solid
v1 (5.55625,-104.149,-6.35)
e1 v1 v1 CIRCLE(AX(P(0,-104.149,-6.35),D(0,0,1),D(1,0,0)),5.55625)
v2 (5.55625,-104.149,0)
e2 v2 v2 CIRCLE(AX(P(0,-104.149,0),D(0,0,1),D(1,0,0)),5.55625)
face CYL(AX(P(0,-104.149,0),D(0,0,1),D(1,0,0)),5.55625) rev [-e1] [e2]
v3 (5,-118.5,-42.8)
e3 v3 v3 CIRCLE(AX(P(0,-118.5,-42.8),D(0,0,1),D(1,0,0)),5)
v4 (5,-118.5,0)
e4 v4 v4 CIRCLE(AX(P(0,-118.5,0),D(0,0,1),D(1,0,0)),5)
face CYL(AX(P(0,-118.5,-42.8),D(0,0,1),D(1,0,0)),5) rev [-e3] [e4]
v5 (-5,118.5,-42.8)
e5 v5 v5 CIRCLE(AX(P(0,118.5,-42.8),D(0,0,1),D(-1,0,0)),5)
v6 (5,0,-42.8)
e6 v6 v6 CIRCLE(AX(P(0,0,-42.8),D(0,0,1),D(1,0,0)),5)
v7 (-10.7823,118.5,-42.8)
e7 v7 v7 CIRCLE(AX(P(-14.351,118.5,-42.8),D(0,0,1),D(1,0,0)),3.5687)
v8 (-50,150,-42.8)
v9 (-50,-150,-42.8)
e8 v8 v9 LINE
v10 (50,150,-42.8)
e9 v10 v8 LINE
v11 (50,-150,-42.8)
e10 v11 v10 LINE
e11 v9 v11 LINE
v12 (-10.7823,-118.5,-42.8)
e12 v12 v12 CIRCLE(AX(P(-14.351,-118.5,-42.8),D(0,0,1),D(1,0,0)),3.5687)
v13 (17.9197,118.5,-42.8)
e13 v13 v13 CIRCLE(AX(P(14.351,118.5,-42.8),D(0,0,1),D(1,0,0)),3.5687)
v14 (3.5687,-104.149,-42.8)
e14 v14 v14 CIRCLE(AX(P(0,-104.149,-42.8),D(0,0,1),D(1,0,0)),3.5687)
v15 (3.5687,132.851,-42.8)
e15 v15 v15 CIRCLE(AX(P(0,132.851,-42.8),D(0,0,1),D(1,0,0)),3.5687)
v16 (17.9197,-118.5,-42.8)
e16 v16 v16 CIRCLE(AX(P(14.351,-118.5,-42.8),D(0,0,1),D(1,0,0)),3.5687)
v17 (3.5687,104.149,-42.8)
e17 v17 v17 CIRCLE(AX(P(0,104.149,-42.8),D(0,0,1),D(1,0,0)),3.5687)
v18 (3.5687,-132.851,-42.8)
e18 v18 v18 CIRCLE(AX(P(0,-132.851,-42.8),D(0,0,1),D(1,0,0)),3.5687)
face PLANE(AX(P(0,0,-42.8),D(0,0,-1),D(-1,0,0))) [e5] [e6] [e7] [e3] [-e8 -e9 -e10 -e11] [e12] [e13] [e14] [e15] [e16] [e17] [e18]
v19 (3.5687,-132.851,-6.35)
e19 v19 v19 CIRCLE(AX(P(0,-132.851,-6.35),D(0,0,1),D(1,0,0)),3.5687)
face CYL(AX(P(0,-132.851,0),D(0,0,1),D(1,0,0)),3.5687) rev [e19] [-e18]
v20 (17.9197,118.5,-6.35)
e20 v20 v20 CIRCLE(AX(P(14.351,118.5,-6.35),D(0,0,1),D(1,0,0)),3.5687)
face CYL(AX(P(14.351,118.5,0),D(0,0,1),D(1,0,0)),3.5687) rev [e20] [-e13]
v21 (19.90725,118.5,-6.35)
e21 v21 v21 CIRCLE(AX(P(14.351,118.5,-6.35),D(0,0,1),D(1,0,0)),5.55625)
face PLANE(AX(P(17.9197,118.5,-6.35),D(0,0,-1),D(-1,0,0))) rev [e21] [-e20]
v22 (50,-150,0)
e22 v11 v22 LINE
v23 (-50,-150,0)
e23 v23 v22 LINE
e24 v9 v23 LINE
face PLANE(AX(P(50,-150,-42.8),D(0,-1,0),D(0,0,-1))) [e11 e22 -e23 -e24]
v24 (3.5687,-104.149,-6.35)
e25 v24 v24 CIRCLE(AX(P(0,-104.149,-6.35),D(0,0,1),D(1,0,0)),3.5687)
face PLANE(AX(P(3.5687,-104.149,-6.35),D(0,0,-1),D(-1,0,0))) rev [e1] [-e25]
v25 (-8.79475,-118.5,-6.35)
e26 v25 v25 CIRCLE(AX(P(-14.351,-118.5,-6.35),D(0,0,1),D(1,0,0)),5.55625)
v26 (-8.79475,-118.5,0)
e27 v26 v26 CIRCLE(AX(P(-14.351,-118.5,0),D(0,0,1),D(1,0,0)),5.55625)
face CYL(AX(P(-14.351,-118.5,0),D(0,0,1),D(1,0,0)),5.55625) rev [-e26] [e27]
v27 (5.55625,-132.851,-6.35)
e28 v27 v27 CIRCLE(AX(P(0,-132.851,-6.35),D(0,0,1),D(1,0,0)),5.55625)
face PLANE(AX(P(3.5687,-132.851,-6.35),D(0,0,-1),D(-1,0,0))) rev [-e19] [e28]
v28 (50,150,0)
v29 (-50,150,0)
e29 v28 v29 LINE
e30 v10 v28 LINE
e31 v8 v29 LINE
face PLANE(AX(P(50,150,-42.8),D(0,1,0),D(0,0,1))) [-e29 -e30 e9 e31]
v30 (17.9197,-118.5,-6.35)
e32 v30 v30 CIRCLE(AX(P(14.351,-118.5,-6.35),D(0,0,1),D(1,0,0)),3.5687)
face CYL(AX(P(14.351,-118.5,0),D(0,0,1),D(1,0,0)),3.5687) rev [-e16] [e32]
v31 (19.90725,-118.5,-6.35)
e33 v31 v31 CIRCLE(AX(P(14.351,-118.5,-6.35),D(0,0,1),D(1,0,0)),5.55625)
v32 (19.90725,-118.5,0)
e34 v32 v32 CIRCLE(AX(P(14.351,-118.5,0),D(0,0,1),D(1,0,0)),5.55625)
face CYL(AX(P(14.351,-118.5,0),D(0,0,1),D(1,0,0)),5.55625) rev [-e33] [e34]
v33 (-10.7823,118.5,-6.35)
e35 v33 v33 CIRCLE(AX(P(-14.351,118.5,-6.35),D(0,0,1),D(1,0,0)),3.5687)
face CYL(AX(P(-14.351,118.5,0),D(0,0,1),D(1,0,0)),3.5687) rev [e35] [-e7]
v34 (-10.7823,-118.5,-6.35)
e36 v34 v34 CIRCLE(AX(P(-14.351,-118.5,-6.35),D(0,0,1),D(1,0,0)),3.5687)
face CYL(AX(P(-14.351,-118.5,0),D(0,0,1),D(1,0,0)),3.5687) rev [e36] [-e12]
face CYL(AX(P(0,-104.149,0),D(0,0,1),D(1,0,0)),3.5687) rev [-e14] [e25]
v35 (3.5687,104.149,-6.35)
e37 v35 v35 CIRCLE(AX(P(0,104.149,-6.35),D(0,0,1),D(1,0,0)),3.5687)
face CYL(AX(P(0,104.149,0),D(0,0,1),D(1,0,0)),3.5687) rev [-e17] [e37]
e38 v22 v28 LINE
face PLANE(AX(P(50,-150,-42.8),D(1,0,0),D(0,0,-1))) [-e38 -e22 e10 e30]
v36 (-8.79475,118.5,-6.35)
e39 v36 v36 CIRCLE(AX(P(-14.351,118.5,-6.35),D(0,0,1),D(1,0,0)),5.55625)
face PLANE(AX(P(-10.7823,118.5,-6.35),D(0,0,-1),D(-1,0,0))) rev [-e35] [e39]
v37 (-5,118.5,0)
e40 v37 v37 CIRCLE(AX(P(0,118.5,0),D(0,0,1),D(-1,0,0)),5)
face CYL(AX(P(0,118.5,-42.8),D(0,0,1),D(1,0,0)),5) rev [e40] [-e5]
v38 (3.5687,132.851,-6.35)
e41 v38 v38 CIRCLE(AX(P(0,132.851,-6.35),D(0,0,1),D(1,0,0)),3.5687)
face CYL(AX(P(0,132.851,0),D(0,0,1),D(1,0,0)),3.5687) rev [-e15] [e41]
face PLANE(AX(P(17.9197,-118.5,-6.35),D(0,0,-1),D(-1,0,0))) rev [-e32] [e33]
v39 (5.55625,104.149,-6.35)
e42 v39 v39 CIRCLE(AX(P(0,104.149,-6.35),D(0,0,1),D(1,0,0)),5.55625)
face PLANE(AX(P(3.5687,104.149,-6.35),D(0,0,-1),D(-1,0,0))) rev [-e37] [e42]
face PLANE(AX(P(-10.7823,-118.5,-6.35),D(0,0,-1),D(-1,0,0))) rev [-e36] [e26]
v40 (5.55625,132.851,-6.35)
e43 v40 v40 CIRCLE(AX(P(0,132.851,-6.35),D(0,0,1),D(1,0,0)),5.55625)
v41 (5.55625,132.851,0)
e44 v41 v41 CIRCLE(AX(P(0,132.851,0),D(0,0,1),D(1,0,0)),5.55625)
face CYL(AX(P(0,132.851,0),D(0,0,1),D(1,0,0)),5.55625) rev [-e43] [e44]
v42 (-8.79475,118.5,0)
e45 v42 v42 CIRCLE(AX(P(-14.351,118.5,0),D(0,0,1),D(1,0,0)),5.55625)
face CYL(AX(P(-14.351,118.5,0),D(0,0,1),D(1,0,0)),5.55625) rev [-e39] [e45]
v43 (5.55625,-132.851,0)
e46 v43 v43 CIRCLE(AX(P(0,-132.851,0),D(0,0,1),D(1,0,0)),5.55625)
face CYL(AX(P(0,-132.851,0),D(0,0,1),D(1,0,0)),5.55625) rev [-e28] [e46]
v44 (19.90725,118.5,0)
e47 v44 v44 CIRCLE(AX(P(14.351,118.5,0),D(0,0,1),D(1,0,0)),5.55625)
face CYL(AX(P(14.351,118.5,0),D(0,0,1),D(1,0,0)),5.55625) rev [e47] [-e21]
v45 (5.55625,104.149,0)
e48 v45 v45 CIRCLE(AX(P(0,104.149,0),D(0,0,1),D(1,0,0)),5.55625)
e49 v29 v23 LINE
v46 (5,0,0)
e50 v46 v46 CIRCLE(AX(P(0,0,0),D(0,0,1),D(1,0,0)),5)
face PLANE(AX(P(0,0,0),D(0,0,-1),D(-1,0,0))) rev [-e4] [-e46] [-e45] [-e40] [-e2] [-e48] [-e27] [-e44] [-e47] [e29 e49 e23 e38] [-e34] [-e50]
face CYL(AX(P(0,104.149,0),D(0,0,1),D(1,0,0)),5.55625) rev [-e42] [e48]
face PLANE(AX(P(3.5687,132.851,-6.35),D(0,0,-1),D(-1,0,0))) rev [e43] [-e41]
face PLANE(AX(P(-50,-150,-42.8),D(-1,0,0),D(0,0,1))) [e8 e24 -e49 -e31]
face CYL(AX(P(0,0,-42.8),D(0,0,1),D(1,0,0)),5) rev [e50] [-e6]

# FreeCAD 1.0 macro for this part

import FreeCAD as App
import Part
import Sketcher

V = App.Vector

doc = App.newDocument("Part")
body = doc.addObject("PartDesign::Body", "Body")

# Sketch on XY plane
sketch1 = body.newObject("Sketcher::SketchObject", "Sketch")
sketch1.AttachmentSupport = (doc.getObject("XY_Plane"), [""])
sketch1.MapMode = "FlatFace"
sketch1.addGeometry([
    Part.LineSegment(V(-50, -150, 0), V(50, -150, 0)),  # 0
    Part.LineSegment(V(50, -150, 0), V(50, 150, 0)),  # 1
    Part.LineSegment(V(50, 150, 0), V(-50, 150, 0)),  # 2
    Part.LineSegment(V(-50, 150, 0), V(-50, -150, 0)),  # 3
    Part.Circle(V(0, -118.5, 0), V(0, 0, 1), 5),  # 4
    Part.Circle(V(0, 0, 0), V(0, 0, 1), 5),  # 5
    Part.Circle(V(0, 118.5, 0), V(0, 0, 1), 5),  # 6
], False)
sketch1.addConstraint([
    Sketcher.Constraint("Coincident", 0, 2, 1, 1),
    Sketcher.Constraint("Coincident", 1, 2, 2, 1),
    Sketcher.Constraint("Coincident", 2, 2, 3, 1),
    Sketcher.Constraint("Coincident", 3, 2, 0, 1),
    Sketcher.Constraint("Horizontal", 0),
    Sketcher.Constraint("Vertical", 1),
    Sketcher.Constraint("Horizontal", 2),
    Sketcher.Constraint("Vertical", 3),
    Sketcher.Constraint("Coincident", 5, 3, -1, 1),
    Sketcher.Constraint("Equal", 4, 5),
    Sketcher.Constraint("Equal", 5, 6),
    Sketcher.Constraint("Symmetric", 4, 3, 6, 3, -1, 1),
    Sketcher.Constraint("Symmetric", 0, 2, 2, 2, -1, 1),
    Sketcher.Constraint("PointOnObject", 4, 3, -2),
    Sketcher.Constraint("Diameter", 4, 10.0),
    Sketcher.Constraint("DistanceX", 0, 1, 0, 2, 100.0),
    Sketcher.Constraint("DistanceY", 1, 1, 1, 2, 300.0),
    Sketcher.Constraint("DistanceY", 4, 3, 6, 3, 237.0),
])
pad1 = body.newObject("PartDesign::Pad", "Pad")
pad1.Profile = sketch1
pad1.Length = 42.8
pad1.Reversed = True

# Sketch on XY plane
sketch2 = body.newObject("Sketcher::SketchObject", "Sketch001")
sketch2.AttachmentSupport = (doc.getObject("XY_Plane"), [""])
sketch2.MapMode = "FlatFace"
sketch2.addGeometry([
    Part.Circle(V(14.351, -118.5, 0), V(0, 0, 1), 3.5687),  # 0
    Part.Circle(V(0, -132.851, 0), V(0, 0, 1), 3.5687),  # 1
    Part.Circle(V(-14.351, -118.5, 0), V(0, 0, 1), 3.5687),  # 2
    Part.Circle(V(0, -104.149, 0), V(0, 0, 1), 3.5687),  # 3
    Part.Circle(V(0, 104.149, 0), V(0, 0, 1), 3.5687),  # 4
    Part.Circle(V(14.351, 118.5, 0), V(0, 0, 1), 3.5687),  # 5
    Part.Circle(V(0, 132.851, 0), V(0, 0, 1), 3.5687),  # 6
    Part.Circle(V(-14.351, 118.5, 0), V(0, 0, 1), 3.5687),  # 7
], False)
sketch2.addConstraint([
    Sketcher.Constraint("Equal", 0, 1),
    Sketcher.Constraint("Equal", 1, 2),
    Sketcher.Constraint("Equal", 2, 3),
    Sketcher.Constraint("Equal", 3, 4),
    Sketcher.Constraint("Equal", 4, 5),
    Sketcher.Constraint("Equal", 5, 6),
    Sketcher.Constraint("Equal", 6, 7),
    Sketcher.Constraint("Symmetric", 3, 3, 4, 3, -1, 1),
    Sketcher.Constraint("Symmetric", 2, 3, 5, 3, -1, 1),
    Sketcher.Constraint("Symmetric", 1, 3, 6, 3, -1, 1),
    Sketcher.Constraint("Symmetric", 0, 3, 7, 3, -1, 1),
    Sketcher.Constraint("Symmetric", 0, 3, 2, 3, -2),
    Sketcher.Constraint("PointOnObject", 1, 3, -2),
    Sketcher.Constraint("PointOnObject", 3, 3, -2),
    Sketcher.Constraint("DistanceY", 1, 3, 4, 3, 237.0),
    Sketcher.Constraint("DistanceY", 0, 3, 5, 3, 237.0),
    Sketcher.Constraint("Diameter", 0, 7.1374),
    Sketcher.Constraint("DistanceX", -1, 1, 0, 3, 14.351),
    Sketcher.Constraint("DistanceY", 1, 3, -1, 1, 132.851),
])
doc.recompute()
hole = body.newObject("PartDesign::Hole", "Hole")
hole.Profile = sketch2
hole.ThreadType = "None"
hole.Diameter = 7.1374
hole.DepthType = "ThroughAll"
hole.HoleCutType = "Counterbore"
hole.HoleCutDiameter = 11.1125
hole.HoleCutDepth = 6.35

doc.recompute()
